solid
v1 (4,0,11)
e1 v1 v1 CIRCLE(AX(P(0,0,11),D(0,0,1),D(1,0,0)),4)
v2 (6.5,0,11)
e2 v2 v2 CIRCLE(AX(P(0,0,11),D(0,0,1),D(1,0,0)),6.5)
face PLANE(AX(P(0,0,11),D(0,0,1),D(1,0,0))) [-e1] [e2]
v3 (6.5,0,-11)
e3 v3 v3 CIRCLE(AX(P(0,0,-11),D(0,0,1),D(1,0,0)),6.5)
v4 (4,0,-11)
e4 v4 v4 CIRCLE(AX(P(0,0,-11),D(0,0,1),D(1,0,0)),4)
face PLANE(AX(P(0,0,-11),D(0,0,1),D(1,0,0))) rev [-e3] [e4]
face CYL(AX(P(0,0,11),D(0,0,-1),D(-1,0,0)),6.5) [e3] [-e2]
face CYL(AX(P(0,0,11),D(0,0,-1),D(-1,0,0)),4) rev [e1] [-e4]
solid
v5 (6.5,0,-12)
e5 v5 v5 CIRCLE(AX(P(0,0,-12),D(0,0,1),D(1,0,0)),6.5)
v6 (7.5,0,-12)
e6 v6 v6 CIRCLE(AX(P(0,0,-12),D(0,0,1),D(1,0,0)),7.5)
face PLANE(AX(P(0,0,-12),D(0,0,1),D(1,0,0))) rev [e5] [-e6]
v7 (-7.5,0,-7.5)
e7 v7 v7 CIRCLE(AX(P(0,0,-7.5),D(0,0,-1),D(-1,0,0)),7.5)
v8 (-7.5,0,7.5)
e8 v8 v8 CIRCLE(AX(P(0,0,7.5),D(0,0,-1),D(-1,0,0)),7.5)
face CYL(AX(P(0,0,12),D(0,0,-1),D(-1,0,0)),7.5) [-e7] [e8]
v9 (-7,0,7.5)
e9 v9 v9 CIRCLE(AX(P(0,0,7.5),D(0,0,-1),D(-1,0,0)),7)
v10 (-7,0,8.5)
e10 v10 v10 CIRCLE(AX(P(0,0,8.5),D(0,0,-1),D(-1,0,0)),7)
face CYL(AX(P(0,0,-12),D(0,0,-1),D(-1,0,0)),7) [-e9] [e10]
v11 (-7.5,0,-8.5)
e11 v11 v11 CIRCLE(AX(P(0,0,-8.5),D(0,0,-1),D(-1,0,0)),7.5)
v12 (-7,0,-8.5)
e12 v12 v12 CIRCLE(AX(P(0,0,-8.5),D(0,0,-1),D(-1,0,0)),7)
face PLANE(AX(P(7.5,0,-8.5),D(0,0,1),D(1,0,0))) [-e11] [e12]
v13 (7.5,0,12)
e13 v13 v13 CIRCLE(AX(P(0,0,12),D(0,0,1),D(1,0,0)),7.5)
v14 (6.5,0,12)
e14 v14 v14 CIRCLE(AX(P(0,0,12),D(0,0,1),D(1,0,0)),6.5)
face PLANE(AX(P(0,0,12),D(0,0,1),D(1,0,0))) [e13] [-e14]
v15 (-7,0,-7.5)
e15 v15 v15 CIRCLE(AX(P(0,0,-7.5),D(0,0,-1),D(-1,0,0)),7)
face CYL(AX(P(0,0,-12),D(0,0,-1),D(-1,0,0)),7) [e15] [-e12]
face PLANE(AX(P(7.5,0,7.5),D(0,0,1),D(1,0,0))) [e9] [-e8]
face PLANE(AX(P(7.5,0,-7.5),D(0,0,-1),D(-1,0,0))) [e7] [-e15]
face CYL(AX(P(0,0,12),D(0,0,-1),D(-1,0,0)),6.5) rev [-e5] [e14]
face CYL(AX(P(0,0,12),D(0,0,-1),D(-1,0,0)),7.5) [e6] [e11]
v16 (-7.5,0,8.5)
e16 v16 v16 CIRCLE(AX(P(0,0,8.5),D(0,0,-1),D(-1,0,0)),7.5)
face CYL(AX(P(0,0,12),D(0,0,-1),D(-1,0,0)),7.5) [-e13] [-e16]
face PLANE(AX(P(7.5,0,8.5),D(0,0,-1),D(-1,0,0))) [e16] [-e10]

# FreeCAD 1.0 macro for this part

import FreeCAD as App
import Part
import Sketcher
from FreeCAD import Vector
Q = App.Units.Quantity


def add_polygon(sketch, points):
    """Adds a closed chain of lines whose ends are joined by coincident constraints."""
    first, n = sketch.GeometryCount, len(points)
    for a, b in zip(points, points[1:] + points[:1]):
        sketch.addGeometry(Part.LineSegment(App.Vector(*a, 0), App.Vector(*b, 0)), False)
    for i in range(n):
        sketch.addConstraint(Sketcher.Constraint("Coincident", first + i, 2, first + (i + 1) % n, 1))

doc = App.newDocument("Part")
params = doc.addObject("Spreadsheet::Sheet", "Params")
for row, (alias, value) in enumerate([
    ("sketch1_diameter", "15 mm"),
    ("sketch1_diameter2", "13 mm"),
    ("pad1_length", "24 mm"),
    ("sketch2_height", "1 mm"),
    ("sketch2_width", "0.5 mm"),
    ("groove_angle", "360 deg"),
    ("sketch3_diameter", "13 mm"),
    ("sketch3_diameter2", "8 mm"),
    ("pad2_length", "22 mm"),
], start=1):
    params.set(f"A{row}", alias)
    params.set(f"B{row}", "=" + value)
    params.setAlias(f"B{row}", alias)

body = doc.addObject("PartDesign::Body", "Body")

sketch1 = body.newObject("Sketcher::SketchObject", "Sketch")
sketch1.AttachmentSupport = (doc.getObject("XY_Plane"), [""])
sketch1.MapMode = "FlatFace"
sketch1.addGeometry(Part.Circle(Vector(0, 0, 0), Vector(0, 0, 1), 7.5), False)
sketch1.addGeometry(Part.Circle(Vector(0, 0, 0), Vector(0, 0, 1), 6.5), False)
sketch1.addConstraint(Sketcher.Constraint("Coincident", 0, 3, -1, 1))
sketch1.addConstraint(Sketcher.Constraint("Coincident", 1, 3, -1, 1))
sketch1.addConstraint(Sketcher.Constraint("Diameter", 0, Q("15 mm")))
sketch1.addConstraint(Sketcher.Constraint("Diameter", 1, Q("13 mm")))
sketch1.setExpression("Constraints[2]", "Params.sketch1_diameter")
sketch1.setExpression("Constraints[3]", "Params.sketch1_diameter2")
pad1 = body.newObject("PartDesign::Pad", "Pad")
pad1.Profile = sketch1
pad1.setExpression("Length", "Params.pad1_length")
pad1.Midplane = True

sketch2 = body.newObject("Sketcher::SketchObject", "Sketch001")
sketch2.AttachmentSupport = (doc.getObject("XZ_Plane"), [""])
sketch2.MapMode = "FlatFace"
add_polygon(sketch2, [(7, -8.5), (7, -7.5), (7.5, -7.5), (7.5, -8.5)])
add_polygon(sketch2, [(7, 7.5), (7, 8.5), (7.5, 8.5), (7.5, 7.5)])
sketch2.addConstraint(Sketcher.Constraint("Vertical", 0))
sketch2.addConstraint(Sketcher.Constraint("Horizontal", 1))
sketch2.addConstraint(Sketcher.Constraint("Vertical", 2))
sketch2.addConstraint(Sketcher.Constraint("Horizontal", 3))
sketch2.addConstraint(Sketcher.Constraint("Vertical", 4))
sketch2.addConstraint(Sketcher.Constraint("Horizontal", 5))
sketch2.addConstraint(Sketcher.Constraint("Vertical", 6))
sketch2.addConstraint(Sketcher.Constraint("Horizontal", 7))
sketch2.addConstraint(Sketcher.Constraint("Symmetric", 3, 2, 4, 2, -1))
sketch2.addConstraint(Sketcher.Constraint("Symmetric", 1, 2, 6, 2, -1))
sketch2.addConstraint(Sketcher.Constraint("DistanceY", 0, 1, 0, 2, Q("1 mm")))
sketch2.addConstraint(Sketcher.Constraint("DistanceX", 1, 1, 1, 2, Q("0.5 mm")))
sketch2.addConstraint(Sketcher.Constraint("DistanceX", -1, 1, 0, 2, Q("7 mm")))
sketch2.addConstraint(Sketcher.Constraint("DistanceY", 0, 2, 4, 2, Q("16 mm")))
sketch2.setExpression("Constraints[18]", "Params.sketch2_height")
sketch2.setExpression("Constraints[19]", "Params.sketch2_width")
groove = body.newObject("PartDesign::Groove", "Groove")
groove.Profile = sketch2
groove.ReferenceAxis = (sketch2, ["V_Axis"])
groove.setExpression("Angle", "Params.groove_angle")
body2 = doc.addObject("PartDesign::Body", "Body001")

sketch3 = body2.newObject("Sketcher::SketchObject", "Sketch002")
sketch3.AttachmentSupport = (doc.getObject("XY_Plane001"), [""])
sketch3.MapMode = "FlatFace"
sketch3.addGeometry(Part.Circle(Vector(0, 0, 0), Vector(0, 0, 1), 6.5), False)
sketch3.addGeometry(Part.Circle(Vector(0, 0, 0), Vector(0, 0, 1), 4), False)
sketch3.addConstraint(Sketcher.Constraint("Coincident", 0, 3, -1, 1))
sketch3.addConstraint(Sketcher.Constraint("Coincident", 1, 3, -1, 1))
sketch3.addConstraint(Sketcher.Constraint("Diameter", 0, Q("13 mm")))
sketch3.addConstraint(Sketcher.Constraint("Diameter", 1, Q("8 mm")))
sketch3.setExpression("Constraints[2]", "Params.sketch3_diameter")
sketch3.setExpression("Constraints[3]", "Params.sketch3_diameter2")
pad2 = body2.newObject("PartDesign::Pad", "Pad001")
pad2.Profile = sketch3
pad2.setExpression("Length", "Params.pad2_length")
pad2.Midplane = True

doc.recompute()
